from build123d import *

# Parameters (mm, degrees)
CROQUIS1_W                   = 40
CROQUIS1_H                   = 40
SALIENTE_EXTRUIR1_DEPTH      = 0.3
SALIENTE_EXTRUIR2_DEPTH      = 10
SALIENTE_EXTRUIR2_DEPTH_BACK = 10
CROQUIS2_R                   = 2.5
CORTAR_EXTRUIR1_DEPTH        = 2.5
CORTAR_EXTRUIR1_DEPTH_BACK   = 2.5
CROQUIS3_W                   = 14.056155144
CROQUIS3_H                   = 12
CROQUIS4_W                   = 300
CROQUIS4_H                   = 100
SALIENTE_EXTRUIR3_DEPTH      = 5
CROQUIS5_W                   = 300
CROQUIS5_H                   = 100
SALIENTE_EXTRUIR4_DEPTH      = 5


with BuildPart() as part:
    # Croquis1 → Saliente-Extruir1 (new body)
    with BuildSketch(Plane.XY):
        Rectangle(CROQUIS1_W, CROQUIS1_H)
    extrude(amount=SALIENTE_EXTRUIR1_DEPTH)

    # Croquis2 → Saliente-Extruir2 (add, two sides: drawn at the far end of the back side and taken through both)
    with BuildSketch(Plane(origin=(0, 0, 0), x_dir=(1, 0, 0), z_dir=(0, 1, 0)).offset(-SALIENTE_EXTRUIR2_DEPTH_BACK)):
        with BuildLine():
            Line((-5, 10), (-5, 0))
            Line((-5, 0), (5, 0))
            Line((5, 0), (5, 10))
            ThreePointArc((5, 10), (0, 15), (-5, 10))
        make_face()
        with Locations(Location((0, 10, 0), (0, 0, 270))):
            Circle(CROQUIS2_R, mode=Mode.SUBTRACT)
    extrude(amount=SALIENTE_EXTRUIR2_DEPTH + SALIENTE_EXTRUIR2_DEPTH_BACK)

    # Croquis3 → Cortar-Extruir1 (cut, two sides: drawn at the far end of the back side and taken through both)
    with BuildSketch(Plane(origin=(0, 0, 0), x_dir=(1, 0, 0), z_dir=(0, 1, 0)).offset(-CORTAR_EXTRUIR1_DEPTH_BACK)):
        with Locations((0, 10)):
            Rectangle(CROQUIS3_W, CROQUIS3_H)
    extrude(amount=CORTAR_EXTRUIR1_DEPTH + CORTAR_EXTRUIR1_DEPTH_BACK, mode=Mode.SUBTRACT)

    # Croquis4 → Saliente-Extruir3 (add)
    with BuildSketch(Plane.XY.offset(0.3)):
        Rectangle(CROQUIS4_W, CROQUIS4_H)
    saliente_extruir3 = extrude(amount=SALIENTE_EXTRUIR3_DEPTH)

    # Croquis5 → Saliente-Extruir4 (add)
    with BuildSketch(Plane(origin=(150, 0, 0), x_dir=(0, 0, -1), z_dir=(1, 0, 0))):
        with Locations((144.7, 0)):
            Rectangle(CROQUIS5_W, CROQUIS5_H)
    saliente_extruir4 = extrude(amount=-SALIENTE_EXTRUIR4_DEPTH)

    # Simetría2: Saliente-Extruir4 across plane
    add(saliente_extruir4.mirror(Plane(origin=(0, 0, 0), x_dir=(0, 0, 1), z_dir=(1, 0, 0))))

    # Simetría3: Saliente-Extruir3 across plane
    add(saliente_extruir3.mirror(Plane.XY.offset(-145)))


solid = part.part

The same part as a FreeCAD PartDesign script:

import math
import FreeCAD as App
import Part
import Sketcher
from FreeCAD import Vector

doc = App.newDocument("Part")
body = doc.addObject("PartDesign::Body", "Body")

sketch1 = body.newObject("Sketcher::SketchObject", "Sketch")
sketch1.AttachmentSupport = (doc.getObject("XY_Plane"), [""])
sketch1.MapMode = "FlatFace"
sketch1.addGeometry([
    Part.LineSegment(Vector(-20, 20, 0), Vector(-20, -20, 0)),
    Part.LineSegment(Vector(-20, -20, 0), Vector(20, -20, 0)),
    Part.LineSegment(Vector(20, -20, 0), Vector(20, 20, 0)),
    Part.LineSegment(Vector(20, 20, 0), Vector(-20, 20, 0)),
], False)
sketch1.addConstraint([
    Sketcher.Constraint("Coincident", 0, 2, 1, 1),
    Sketcher.Constraint("Coincident", 1, 2, 2, 1),
    Sketcher.Constraint("Coincident", 2, 2, 3, 1),
    Sketcher.Constraint("Coincident", 3, 2, 0, 1),
    Sketcher.Constraint("Vertical", 0),
    Sketcher.Constraint("Horizontal", 1),
    Sketcher.Constraint("Vertical", 2),
    Sketcher.Constraint("Horizontal", 3),
    Sketcher.Constraint("Symmetric", 0, 2, 2, 2, -1, 1),
    Sketcher.Constraint("Equal", 3, 0),
    Sketcher.Constraint("DistanceX", 1, 1, 1, 2, 40.0),
])
pad1 = body.newObject("PartDesign::Pad", "Pad")
pad1.Profile = sketch1
pad1.Length = 0.3

sketch2 = body.newObject("Sketcher::SketchObject", "Sketch001")
sketch2.AttachmentSupport = (doc.getObject("XZ_Plane"), [""])
sketch2.MapMode = "FlatFace"
sketch2.addGeometry([
    Part.LineSegment(Vector(-5, -10, 0), Vector(-5, 0, 0)),
    Part.LineSegment(Vector(-5, 0, 0), Vector(5, 0, 0)),
    Part.LineSegment(Vector(5, 0, 0), Vector(5, -10, 0)),
    Part.ArcOfCircle(Part.Circle(Vector(0, -10, 0), Vector(0, 0, 1), 5), math.radians(180), math.radians(360)),
    Part.Circle(Vector(0, -10, 0), Vector(0, 0, 1), 2.5),
], False)
sketch2.addConstraint([
    Sketcher.Constraint("Coincident", 0, 2, 1, 1),
    Sketcher.Constraint("Coincident", 1, 2, 2, 1),
    Sketcher.Constraint("Tangent", 2, 2, 3, 2),
    Sketcher.Constraint("Tangent", 3, 1, 0, 1),
    Sketcher.Constraint("Vertical", 0),
    Sketcher.Constraint("Horizontal", 1),
    Sketcher.Constraint("Vertical", 2),
    Sketcher.Constraint("Coincident", 4, 3, 3, 3),
    Sketcher.Constraint("Symmetric", 0, 2, 1, 2, -1, 1),
    Sketcher.Constraint("Equal", 1, 0),
    Sketcher.Constraint("Diameter", 4, 5.0),
    Sketcher.Constraint("Radius", 3, 5.0),
])
pad2 = body.newObject("PartDesign::Pad", "Pad001")
pad2.Profile = sketch2
pad2.Type = "TwoLengths"
pad2.Length = 10
pad2.Length2 = 10
pad2.Reversed = True

sketch3 = body.newObject("Sketcher::SketchObject", "Sketch002")
sketch3.AttachmentSupport = (doc.getObject("XZ_Plane"), [""])
sketch3.MapMode = "FlatFace"
sketch3.addGeometry([
    Part.LineSegment(Vector(-7, -16, 0), Vector(-7, -4, 0)),
    Part.LineSegment(Vector(-7, -4, 0), Vector(7, -4, 0)),
    Part.LineSegment(Vector(7, -4, 0), Vector(7, -16, 0)),
    Part.LineSegment(Vector(7, -16, 0), Vector(-7, -16, 0)),
], False)
sketch3.addConstraint([
    Sketcher.Constraint("Coincident", 0, 2, 1, 1),
    Sketcher.Constraint("Coincident", 1, 2, 2, 1),
    Sketcher.Constraint("Coincident", 2, 2, 3, 1),
    Sketcher.Constraint("Coincident", 3, 2, 0, 1),
    Sketcher.Constraint("Vertical", 0),
    Sketcher.Constraint("Horizontal", 1),
    Sketcher.Constraint("Vertical", 2),
    Sketcher.Constraint("Horizontal", 3),
    Sketcher.Constraint("DistanceY", 0, 1, 0, 2, 12.0),
    Sketcher.Constraint("DistanceY", 0, 2, -1, 1, 4.0),
    Sketcher.Constraint("DistanceX", 1, 1, 1, 2, 14.056155),
    Sketcher.Constraint("DistanceX", 0, 2, -1, 1, 7.028078),
])
pocket1 = body.newObject("PartDesign::Pocket", "Pocket")
pocket1.Profile = sketch3
pocket1.Type = "TwoLengths"
pocket1.Length = 2.5
pocket1.Length2 = 2.5

sketch4 = body.newObject("Sketcher::SketchObject", "Sketch003")
sketch4.AttachmentSupport = (doc.getObject("XY_Plane"), [""])
sketch4.MapMode = "FlatFace"
sketch4.AttachmentOffset = App.Placement(Vector(0, 0, 0.3), App.Rotation())
sketch4.addGeometry([
    Part.LineSegment(Vector(-150, 50, 0), Vector(-150, -50, 0)),
    Part.LineSegment(Vector(-150, -50, 0), Vector(150, -50, 0)),
    Part.LineSegment(Vector(150, -50, 0), Vector(150, 50, 0)),
    Part.LineSegment(Vector(150, 50, 0), Vector(-150, 50, 0)),
], False)
sketch4.addConstraint([
    Sketcher.Constraint("Coincident", 0, 2, 1, 1),
    Sketcher.Constraint("Coincident", 1, 2, 2, 1),
    Sketcher.Constraint("Coincident", 2, 2, 3, 1),
    Sketcher.Constraint("Coincident", 3, 2, 0, 1),
    Sketcher.Constraint("Vertical", 0),
    Sketcher.Constraint("Horizontal", 1),
    Sketcher.Constraint("Vertical", 2),
    Sketcher.Constraint("Horizontal", 3),
    Sketcher.Constraint("Symmetric", 0, 2, 2, 2, -1, 1),
    Sketcher.Constraint("DistanceX", 1, 1, 1, 2, 300.0),
    Sketcher.Constraint("DistanceY", 0, 2, 0, 1, 100.0),
])
pad3 = body.newObject("PartDesign::Pad", "Pad002")
pad3.Profile = sketch4
pad3.Length = 5

sketch5 = body.newObject("Sketcher::SketchObject", "Sketch004")
sketch5.AttachmentSupport = (doc.getObject("YZ_Plane"), [""])
sketch5.MapMode = "FlatFace"
sketch5.AttachmentOffset = App.Placement(Vector(0, 0, 150), App.Rotation())
sketch5.addGeometry([
    Part.LineSegment(Vector(50, 5, 0), Vector(-50, 5, 0)),
    Part.LineSegment(Vector(-50, 5, 0), Vector(-50, -295, 0)),
    Part.LineSegment(Vector(-50, -295, 0), Vector(50, -295, 0)),
    Part.LineSegment(Vector(50, -295, 0), Vector(50, 5, 0)),
], False)
sketch5.addConstraint([
    Sketcher.Constraint("Coincident", 0, 2, 1, 1),
    Sketcher.Constraint("Coincident", 1, 2, 2, 1),
    Sketcher.Constraint("Coincident", 2, 2, 3, 1),
    Sketcher.Constraint("Coincident", 3, 2, 0, 1),
    Sketcher.Constraint("Horizontal", 0),
    Sketcher.Constraint("Vertical", 1),
    Sketcher.Constraint("Horizontal", 2),
    Sketcher.Constraint("Vertical", 3),
    Sketcher.Constraint("DistanceX", 0, 2, 0, 1, 100.0),
    Sketcher.Constraint("DistanceY", 1, 2, 1, 1, 300.0),
    Sketcher.Constraint("DistanceX", 0, 2, -1, 1, 50.0),
    Sketcher.Constraint("DistanceY", -1, 1, 0, 2, 5.3),
])
pad4 = body.newObject("PartDesign::Pad", "Pad003")
pad4.Profile = sketch5
pad4.Length = 5
pad4.Reversed = True
doc.recompute()

mirrored = body.newObject("PartDesign::Mirrored", "Mirrored")
mirrored.Originals = [pad4]
mirrored.MirrorPlane = (doc.getObject("YZ_Plane"), [""])
body.Tip = mirrored
doc.recompute()

datumplane = body.newObject("PartDesign::Plane", "DatumPlane")
datumplane.AttachmentSupport = (doc.getObject("XY_Plane"), [""])
datumplane.MapMode = "FlatFace"
datumplane.AttachmentOffset = App.Placement(Vector(0, 0, -145), App.Rotation())
mirrored2 = body.newObject("PartDesign::Mirrored", "Mirrored001")
mirrored2.Originals = [pad3]
mirrored2.MirrorPlane = (datumplane, [""])
body.Tip = mirrored2

doc.recompute()
